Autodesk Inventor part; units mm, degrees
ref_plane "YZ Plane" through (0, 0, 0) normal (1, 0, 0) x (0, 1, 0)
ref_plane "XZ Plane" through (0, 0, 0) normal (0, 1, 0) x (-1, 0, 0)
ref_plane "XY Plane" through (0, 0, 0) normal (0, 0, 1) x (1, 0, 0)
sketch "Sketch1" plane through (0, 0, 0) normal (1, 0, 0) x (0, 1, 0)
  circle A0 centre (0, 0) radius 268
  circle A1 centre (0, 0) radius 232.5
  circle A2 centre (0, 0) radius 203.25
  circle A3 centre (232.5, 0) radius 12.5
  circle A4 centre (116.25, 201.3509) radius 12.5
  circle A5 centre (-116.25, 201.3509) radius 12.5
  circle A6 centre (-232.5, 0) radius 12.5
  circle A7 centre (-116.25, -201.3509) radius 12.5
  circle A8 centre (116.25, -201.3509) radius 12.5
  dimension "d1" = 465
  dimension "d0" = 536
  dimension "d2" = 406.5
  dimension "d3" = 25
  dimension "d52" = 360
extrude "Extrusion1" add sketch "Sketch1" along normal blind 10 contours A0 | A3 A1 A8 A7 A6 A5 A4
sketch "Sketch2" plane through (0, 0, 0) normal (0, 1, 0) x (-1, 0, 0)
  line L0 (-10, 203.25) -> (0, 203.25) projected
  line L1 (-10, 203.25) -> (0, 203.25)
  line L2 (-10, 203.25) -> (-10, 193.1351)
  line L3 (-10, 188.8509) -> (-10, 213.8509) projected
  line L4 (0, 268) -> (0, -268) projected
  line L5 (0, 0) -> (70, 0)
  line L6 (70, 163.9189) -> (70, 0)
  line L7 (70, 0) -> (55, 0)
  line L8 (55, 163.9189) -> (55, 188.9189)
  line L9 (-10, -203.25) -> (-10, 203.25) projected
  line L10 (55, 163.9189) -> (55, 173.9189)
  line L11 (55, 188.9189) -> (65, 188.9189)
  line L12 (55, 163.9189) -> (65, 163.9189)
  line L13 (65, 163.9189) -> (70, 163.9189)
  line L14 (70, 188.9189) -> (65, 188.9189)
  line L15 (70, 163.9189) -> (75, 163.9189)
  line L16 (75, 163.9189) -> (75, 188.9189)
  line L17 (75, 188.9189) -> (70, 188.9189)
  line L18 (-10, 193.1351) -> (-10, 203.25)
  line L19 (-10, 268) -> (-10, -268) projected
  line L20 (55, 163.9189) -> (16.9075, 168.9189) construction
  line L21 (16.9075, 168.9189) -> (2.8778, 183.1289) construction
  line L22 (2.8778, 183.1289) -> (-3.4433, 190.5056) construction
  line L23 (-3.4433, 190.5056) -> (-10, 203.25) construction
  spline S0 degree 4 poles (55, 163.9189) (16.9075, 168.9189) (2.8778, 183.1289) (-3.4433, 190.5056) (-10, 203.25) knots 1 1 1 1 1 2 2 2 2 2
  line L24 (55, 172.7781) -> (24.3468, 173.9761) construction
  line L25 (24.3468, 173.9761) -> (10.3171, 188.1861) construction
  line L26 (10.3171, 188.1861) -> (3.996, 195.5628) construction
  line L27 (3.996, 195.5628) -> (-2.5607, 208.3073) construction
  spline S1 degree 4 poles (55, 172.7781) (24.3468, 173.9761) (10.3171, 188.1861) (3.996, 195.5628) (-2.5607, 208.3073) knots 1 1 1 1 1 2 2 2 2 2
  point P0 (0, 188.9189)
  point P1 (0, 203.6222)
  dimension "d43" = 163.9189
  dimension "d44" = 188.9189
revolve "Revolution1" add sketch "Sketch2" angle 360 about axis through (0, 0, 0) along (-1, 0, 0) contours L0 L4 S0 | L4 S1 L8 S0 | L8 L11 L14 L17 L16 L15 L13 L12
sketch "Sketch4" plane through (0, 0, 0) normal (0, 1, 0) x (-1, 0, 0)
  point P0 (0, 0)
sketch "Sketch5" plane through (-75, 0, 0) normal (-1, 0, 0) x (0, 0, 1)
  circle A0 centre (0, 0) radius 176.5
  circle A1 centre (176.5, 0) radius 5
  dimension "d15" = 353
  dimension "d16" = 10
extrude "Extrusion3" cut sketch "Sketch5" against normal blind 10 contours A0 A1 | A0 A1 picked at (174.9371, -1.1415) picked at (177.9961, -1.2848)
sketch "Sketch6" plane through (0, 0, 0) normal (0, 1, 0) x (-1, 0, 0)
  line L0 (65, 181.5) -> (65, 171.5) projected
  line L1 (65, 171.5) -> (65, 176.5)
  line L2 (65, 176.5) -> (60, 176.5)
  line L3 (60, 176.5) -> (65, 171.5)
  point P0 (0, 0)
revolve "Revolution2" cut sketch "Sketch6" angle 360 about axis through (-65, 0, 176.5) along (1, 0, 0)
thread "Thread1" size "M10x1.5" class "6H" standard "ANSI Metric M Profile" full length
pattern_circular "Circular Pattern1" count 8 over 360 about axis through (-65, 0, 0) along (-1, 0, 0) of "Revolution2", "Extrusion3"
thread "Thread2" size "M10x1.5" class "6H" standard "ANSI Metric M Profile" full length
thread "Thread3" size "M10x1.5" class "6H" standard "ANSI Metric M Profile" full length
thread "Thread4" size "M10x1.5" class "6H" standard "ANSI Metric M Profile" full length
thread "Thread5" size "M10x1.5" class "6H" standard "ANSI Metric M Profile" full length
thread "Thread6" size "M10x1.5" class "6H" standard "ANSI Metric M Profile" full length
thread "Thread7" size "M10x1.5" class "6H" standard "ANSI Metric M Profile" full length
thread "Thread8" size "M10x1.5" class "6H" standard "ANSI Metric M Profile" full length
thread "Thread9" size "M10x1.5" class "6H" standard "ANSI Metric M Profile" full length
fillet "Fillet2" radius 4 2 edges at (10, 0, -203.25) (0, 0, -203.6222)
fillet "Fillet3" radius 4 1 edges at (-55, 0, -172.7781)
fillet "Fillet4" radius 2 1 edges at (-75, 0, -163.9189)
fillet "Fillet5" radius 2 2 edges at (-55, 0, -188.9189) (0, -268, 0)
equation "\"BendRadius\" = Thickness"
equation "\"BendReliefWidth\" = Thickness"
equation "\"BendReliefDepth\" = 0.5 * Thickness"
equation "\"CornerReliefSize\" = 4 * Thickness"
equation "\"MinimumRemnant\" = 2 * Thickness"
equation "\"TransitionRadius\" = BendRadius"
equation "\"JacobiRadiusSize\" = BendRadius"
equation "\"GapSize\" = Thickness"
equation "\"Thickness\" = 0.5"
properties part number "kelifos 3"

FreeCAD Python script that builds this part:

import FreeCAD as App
import Part
import Sketcher

V = App.Vector


def edges_at(feature, points):
    """Names of the edges that pass closest to the given points."""
    edges = feature.Shape.Edges
    near = lambda p: min(range(len(edges)), key=lambda i: edges[i].distToShape(Part.Vertex(*p))[0])
    return sorted({f"Edge{near(p) + 1}" for p in points})

doc = App.newDocument("Part")
params = doc.addObject("Spreadsheet::Sheet", "Params")
for row, (alias, value) in enumerate([
    ("sketch1_diameter", "536 mm"),
    ("sketch1_diameter2", "25 mm"),
    ("sketch1_diameter3", "406.5 mm"),
    ("pad1_length", "10 mm"),
    ("sketch2_width", "20 mm"),
    ("sketch2_height", "25 mm"),
    ("revolution_angle", "360 deg"),
    ("sketch3_diameter", "10 mm"),
    ("pocket1_length", "10 mm"),
    ("sketch4_width", "5 mm"),
    ("groove_angle", "360 deg"),
    ("fillet_radius", "4 mm"),
    ("fillet2_radius", "4 mm"),
    ("fillet3_radius", "2 mm"),
    ("fillet4_radius", "2 mm"),
], start=1):
    params.set(f"A{row}", alias)
    params.set(f"B{row}", "=" + value)
    params.setAlias(f"B{row}", alias)

body = doc.addObject("PartDesign::Body", "Body")

# Sketch on YZ plane
sketch1 = doc.addObject("Sketcher::SketchObject", "Sketch")
body.addObject(sketch1)
sketch1.AttachmentSupport = (doc.YZ_Plane, [""])
sketch1.MapMode = "FlatFace"
sketch1.addGeometry([
    Part.Circle(V(0, 0, 0), V(0, 0, 1), 268),  # 0
    Part.Circle(V(116, 201, 0), V(0, 0, 1), 12),  # 1
    Part.Circle(V(-116, 201, 0), V(0, 0, 1), 12),  # 2
    Part.Circle(V(-232, 0, 0), V(0, 0, 1), 12),  # 3
    Part.Circle(V(-116, -201, 0), V(0, 0, 1), 12),  # 4
    Part.Circle(V(116, -201, 0), V(0, 0, 1), 12),  # 5
    Part.Circle(V(232, 0, 0), V(0, 0, 1), 12),  # 6
    Part.Circle(V(0, 0, 0), V(0, 0, 1), 203),  # 7
], False)
sketch1.addConstraint([
    Sketcher.Constraint("Coincident", 0, 3, -1, 1),
    Sketcher.Constraint("Coincident", 7, 3, -1, 1),
    Sketcher.Constraint("Equal", 1, 2),
    Sketcher.Constraint("Equal", 2, 3),
    Sketcher.Constraint("Equal", 3, 4),
    Sketcher.Constraint("Equal", 4, 5),
    Sketcher.Constraint("Equal", 5, 6),
    Sketcher.Constraint("Symmetric", 1, 3, 4, 3, -1, 1),
    Sketcher.Constraint("Symmetric", 2, 3, 5, 3, -1, 1),
    Sketcher.Constraint("Symmetric", 3, 3, 6, 3, -1, 1),
    Sketcher.Constraint("Symmetric", 1, 3, 2, 3, -2),
    Sketcher.Constraint("PointOnObject", 3, 3, -1),
    Sketcher.Constraint("Diameter", 0, 536.0),
    Sketcher.Constraint("Diameter", 1, 25.0),
    Sketcher.Constraint("Diameter", 7, 406.5),
    Sketcher.Constraint("DistanceX", 3, 3, -1, 1, 232.5),
    Sketcher.Constraint("DistanceX", 2, 3, 1, 3, 232.5),
    Sketcher.Constraint("DistanceY", -1, 1, 1, 3, 201.351),
])
sketch1.setExpression("Constraints[12]", "Params.sketch1_diameter")
sketch1.setExpression("Constraints[13]", "Params.sketch1_diameter2")
sketch1.setExpression("Constraints[14]", "Params.sketch1_diameter3")
pad1 = doc.addObject("PartDesign::Pad", "Pad")
body.addObject(pad1)
pad1.Profile = sketch1
pad1.setExpression("Length", "Params.pad1_length")

# Sketch on XZ plane
sketch2 = doc.addObject("Sketcher::SketchObject", "Sketch001")
body.addObject(sketch2)
sketch2.AttachmentSupport = (doc.XZ_Plane, [""])
sketch2.MapMode = "FlatFace"
sketch2.addGeometry([
    Part.LineSegment(V(0, 203.25, 0), V(10, 203.25, 0)),  # 0
    Part.BSplineCurve([V(0, 188.227437, 0), V(3.148893, 191.729408, 0), V(5.608424, 195.271369, 0), V(7.790839, 198.956006, 0), V(10, 203.25, 0)], [5, 5], [1.663068143, 2], False, 4, [1, 1, 1, 1, 1], False),  # 1
    Part.BSplineCurve([V(-55, 163.9189, 0), V(-29.742077, 167.234241, 0), V(-15.063589, 174.598844, 0), V(-6.196892, 181.335701, 0), V(0, 188.227437, 0)], [5, 5], [1, 1.663068143], False, 4, [1, 1, 1, 1, 1], False),  # 2
    Part.LineSegment(V(-55, 163.9189, 0), V(-75, 163.9189, 0)),  # 3
    Part.LineSegment(V(-75, 163.9189, 0), V(-75, 188.9189, 0)),  # 4
    Part.LineSegment(V(-75, 188.9189, 0), V(-55, 188.9189, 0)),  # 5
    Part.LineSegment(V(-55, 188.9189, 0), V(-55, 172.7781, 0)),  # 6
    Part.BSplineCurve([V(-55, 172.7781, 0), V(-27.321203, 173.859853, 0), V(-13.196336, 185.550909, 0), V(-6.061973, 193.24054, 0), V(0, 203.622198, 0)], [5, 5], [1, 1.902965993], False, 4, [1, 1, 1, 1, 1], False),  # 7
    Part.LineSegment(V(0, 203.622198, 0), V(0, 203.25, 0)),  # 8
], False)
sketch2.addConstraint([
    Sketcher.Constraint("Block", 1),
    Sketcher.Constraint("Block", 2),
    Sketcher.Constraint("Block", 7),
    Sketcher.Constraint("Coincident", 0, 2, 1, 2),
    Sketcher.Constraint("Coincident", 2, 1, 3, 1),
    Sketcher.Constraint("Coincident", 3, 2, 4, 1),
    Sketcher.Constraint("Coincident", 4, 2, 5, 1),
    Sketcher.Constraint("Coincident", 5, 2, 6, 1),
    Sketcher.Constraint("Coincident", 6, 2, 7, 1),
    Sketcher.Constraint("Coincident", 7, 2, 8, 1),
    Sketcher.Constraint("Coincident", 8, 2, 0, 1),
    Sketcher.Constraint("Horizontal", 0),
    Sketcher.Constraint("Horizontal", 3),
    Sketcher.Constraint("Vertical", 4),
    Sketcher.Constraint("Horizontal", 5),
    Sketcher.Constraint("Vertical", 6),
    Sketcher.Constraint("Vertical", 8),
    Sketcher.Constraint("DistanceX", 3, 2, 3, 1, 20.0),
    Sketcher.Constraint("DistanceY", 4, 1, 4, 2, 25.0),
])
sketch2.setExpression("Constraints[17]", "Params.sketch2_width")
sketch2.setExpression("Constraints[18]", "Params.sketch2_height")
revolution = doc.addObject("PartDesign::Revolution", "Revolution")
body.addObject(revolution)
revolution.Profile = sketch2
revolution.ReferenceAxis = (sketch2, ["H_Axis"])
revolution.setExpression("Angle", "Params.revolution_angle")

# Sketch on YZ plane
sketch3 = doc.addObject("Sketcher::SketchObject", "Sketch002")
body.addObject(sketch3)
sketch3.AttachmentSupport = (doc.YZ_Plane, [""])
sketch3.MapMode = "FlatFace"
sketch3.AttachmentOffset = App.Placement(V(0, 0, -75), App.Rotation())
sketch3.addGeometry(Part.Circle(V(0, 176, 0), V(0, 0, 1), 5), False)
sketch3.addConstraint([
    Sketcher.Constraint("PointOnObject", 0, 3, -2),
    Sketcher.Constraint("Diameter", 0, 10.0),
    Sketcher.Constraint("DistanceY", -1, 1, 0, 3, 176.5),
])
sketch3.setExpression("Constraints[1]", "Params.sketch3_diameter")
pocket1 = doc.addObject("PartDesign::Pocket", "Pocket")
body.addObject(pocket1)
pocket1.Profile = sketch3
pocket1.setExpression("Length", "Params.pocket1_length")
pocket1.Reversed = True

# Sketch on XZ plane
sketch4 = doc.addObject("Sketcher::SketchObject", "Sketch003")
body.addObject(sketch4)
sketch4.AttachmentSupport = (doc.XZ_Plane, [""])
sketch4.MapMode = "FlatFace"
sketch4.addGeometry([
    Part.LineSegment(V(-65, 172, 0), V(-65, 176, 0)),
    Part.LineSegment(V(-65, 176, 0), V(-60, 176, 0)),
    Part.LineSegment(V(-60, 176, 0), V(-65, 172, 0)),
], False)
sketch4.addGeometry(Part.LineSegment(V(-65, 176, 0), V(-60, 176, 0)), True)  # axis
sketch4.addConstraint([
    Sketcher.Constraint("Coincident", 0, 2, 1, 1),
    Sketcher.Constraint("Coincident", 1, 2, 2, 1),
    Sketcher.Constraint("Coincident", 2, 2, 0, 1),
    Sketcher.Constraint("Vertical", 0),
    Sketcher.Constraint("Horizontal", 1),
    Sketcher.Constraint("Horizontal", 3),
    Sketcher.Constraint("Coincident", 3, 1, 0, 2),
    Sketcher.Constraint("Equal", 1, 3),
    Sketcher.Constraint("Equal", 3, 0),
    Sketcher.Constraint("DistanceX", 1, 1, 1, 2, 5.0),
    Sketcher.Constraint("DistanceX", 0, 2, -1, 1, 65.0),
    Sketcher.Constraint("DistanceY", -1, 1, 0, 2, 176.5),
])
sketch4.setExpression("Constraints[9]", "Params.sketch4_width")
groove = doc.addObject("PartDesign::Groove", "Groove")
body.addObject(groove)
groove.Profile = sketch4
groove.ReferenceAxis = (sketch4, ["Axis0"])
groove.setExpression("Angle", "Params.groove_angle")
doc.recompute()

polarpattern = doc.addObject("PartDesign::PolarPattern", "PolarPattern")
body.addObject(polarpattern)
polarpattern.Originals = [groove, pocket1]
polarpattern.Axis = (doc.X_Axis, [""])
polarpattern.Angle = 360
polarpattern.Occurrences = 8
body.Tip = polarpattern
doc.recompute()

fillet = doc.addObject("PartDesign::Fillet", "Fillet")
body.addObject(fillet)
fillet.Base = (polarpattern, edges_at(polarpattern, [(10, 0, -203.25), (0, 0, -203.622)]))
fillet.setExpression("Radius", "Params.fillet_radius")
doc.recompute()

fillet2 = doc.addObject("PartDesign::Fillet", "Fillet001")
body.addObject(fillet2)
fillet2.Base = (fillet, edges_at(fillet, [(-55, 0, -172.778)]))
fillet2.setExpression("Radius", "Params.fillet2_radius")
doc.recompute()

fillet3 = doc.addObject("PartDesign::Fillet", "Fillet002")
body.addObject(fillet3)
fillet3.Base = (fillet2, edges_at(fillet2, [(-75, 0, -163.919)]))
fillet3.setExpression("Radius", "Params.fillet3_radius")
doc.recompute()

fillet4 = doc.addObject("PartDesign::Fillet", "Fillet003")
body.addObject(fillet4)
fillet4.Base = (fillet3, edges_at(fillet3, [(-55, 0, -188.919), (0, -268, 0)]))
fillet4.setExpression("Radius", "Params.fillet4_radius")

doc.recompute()
